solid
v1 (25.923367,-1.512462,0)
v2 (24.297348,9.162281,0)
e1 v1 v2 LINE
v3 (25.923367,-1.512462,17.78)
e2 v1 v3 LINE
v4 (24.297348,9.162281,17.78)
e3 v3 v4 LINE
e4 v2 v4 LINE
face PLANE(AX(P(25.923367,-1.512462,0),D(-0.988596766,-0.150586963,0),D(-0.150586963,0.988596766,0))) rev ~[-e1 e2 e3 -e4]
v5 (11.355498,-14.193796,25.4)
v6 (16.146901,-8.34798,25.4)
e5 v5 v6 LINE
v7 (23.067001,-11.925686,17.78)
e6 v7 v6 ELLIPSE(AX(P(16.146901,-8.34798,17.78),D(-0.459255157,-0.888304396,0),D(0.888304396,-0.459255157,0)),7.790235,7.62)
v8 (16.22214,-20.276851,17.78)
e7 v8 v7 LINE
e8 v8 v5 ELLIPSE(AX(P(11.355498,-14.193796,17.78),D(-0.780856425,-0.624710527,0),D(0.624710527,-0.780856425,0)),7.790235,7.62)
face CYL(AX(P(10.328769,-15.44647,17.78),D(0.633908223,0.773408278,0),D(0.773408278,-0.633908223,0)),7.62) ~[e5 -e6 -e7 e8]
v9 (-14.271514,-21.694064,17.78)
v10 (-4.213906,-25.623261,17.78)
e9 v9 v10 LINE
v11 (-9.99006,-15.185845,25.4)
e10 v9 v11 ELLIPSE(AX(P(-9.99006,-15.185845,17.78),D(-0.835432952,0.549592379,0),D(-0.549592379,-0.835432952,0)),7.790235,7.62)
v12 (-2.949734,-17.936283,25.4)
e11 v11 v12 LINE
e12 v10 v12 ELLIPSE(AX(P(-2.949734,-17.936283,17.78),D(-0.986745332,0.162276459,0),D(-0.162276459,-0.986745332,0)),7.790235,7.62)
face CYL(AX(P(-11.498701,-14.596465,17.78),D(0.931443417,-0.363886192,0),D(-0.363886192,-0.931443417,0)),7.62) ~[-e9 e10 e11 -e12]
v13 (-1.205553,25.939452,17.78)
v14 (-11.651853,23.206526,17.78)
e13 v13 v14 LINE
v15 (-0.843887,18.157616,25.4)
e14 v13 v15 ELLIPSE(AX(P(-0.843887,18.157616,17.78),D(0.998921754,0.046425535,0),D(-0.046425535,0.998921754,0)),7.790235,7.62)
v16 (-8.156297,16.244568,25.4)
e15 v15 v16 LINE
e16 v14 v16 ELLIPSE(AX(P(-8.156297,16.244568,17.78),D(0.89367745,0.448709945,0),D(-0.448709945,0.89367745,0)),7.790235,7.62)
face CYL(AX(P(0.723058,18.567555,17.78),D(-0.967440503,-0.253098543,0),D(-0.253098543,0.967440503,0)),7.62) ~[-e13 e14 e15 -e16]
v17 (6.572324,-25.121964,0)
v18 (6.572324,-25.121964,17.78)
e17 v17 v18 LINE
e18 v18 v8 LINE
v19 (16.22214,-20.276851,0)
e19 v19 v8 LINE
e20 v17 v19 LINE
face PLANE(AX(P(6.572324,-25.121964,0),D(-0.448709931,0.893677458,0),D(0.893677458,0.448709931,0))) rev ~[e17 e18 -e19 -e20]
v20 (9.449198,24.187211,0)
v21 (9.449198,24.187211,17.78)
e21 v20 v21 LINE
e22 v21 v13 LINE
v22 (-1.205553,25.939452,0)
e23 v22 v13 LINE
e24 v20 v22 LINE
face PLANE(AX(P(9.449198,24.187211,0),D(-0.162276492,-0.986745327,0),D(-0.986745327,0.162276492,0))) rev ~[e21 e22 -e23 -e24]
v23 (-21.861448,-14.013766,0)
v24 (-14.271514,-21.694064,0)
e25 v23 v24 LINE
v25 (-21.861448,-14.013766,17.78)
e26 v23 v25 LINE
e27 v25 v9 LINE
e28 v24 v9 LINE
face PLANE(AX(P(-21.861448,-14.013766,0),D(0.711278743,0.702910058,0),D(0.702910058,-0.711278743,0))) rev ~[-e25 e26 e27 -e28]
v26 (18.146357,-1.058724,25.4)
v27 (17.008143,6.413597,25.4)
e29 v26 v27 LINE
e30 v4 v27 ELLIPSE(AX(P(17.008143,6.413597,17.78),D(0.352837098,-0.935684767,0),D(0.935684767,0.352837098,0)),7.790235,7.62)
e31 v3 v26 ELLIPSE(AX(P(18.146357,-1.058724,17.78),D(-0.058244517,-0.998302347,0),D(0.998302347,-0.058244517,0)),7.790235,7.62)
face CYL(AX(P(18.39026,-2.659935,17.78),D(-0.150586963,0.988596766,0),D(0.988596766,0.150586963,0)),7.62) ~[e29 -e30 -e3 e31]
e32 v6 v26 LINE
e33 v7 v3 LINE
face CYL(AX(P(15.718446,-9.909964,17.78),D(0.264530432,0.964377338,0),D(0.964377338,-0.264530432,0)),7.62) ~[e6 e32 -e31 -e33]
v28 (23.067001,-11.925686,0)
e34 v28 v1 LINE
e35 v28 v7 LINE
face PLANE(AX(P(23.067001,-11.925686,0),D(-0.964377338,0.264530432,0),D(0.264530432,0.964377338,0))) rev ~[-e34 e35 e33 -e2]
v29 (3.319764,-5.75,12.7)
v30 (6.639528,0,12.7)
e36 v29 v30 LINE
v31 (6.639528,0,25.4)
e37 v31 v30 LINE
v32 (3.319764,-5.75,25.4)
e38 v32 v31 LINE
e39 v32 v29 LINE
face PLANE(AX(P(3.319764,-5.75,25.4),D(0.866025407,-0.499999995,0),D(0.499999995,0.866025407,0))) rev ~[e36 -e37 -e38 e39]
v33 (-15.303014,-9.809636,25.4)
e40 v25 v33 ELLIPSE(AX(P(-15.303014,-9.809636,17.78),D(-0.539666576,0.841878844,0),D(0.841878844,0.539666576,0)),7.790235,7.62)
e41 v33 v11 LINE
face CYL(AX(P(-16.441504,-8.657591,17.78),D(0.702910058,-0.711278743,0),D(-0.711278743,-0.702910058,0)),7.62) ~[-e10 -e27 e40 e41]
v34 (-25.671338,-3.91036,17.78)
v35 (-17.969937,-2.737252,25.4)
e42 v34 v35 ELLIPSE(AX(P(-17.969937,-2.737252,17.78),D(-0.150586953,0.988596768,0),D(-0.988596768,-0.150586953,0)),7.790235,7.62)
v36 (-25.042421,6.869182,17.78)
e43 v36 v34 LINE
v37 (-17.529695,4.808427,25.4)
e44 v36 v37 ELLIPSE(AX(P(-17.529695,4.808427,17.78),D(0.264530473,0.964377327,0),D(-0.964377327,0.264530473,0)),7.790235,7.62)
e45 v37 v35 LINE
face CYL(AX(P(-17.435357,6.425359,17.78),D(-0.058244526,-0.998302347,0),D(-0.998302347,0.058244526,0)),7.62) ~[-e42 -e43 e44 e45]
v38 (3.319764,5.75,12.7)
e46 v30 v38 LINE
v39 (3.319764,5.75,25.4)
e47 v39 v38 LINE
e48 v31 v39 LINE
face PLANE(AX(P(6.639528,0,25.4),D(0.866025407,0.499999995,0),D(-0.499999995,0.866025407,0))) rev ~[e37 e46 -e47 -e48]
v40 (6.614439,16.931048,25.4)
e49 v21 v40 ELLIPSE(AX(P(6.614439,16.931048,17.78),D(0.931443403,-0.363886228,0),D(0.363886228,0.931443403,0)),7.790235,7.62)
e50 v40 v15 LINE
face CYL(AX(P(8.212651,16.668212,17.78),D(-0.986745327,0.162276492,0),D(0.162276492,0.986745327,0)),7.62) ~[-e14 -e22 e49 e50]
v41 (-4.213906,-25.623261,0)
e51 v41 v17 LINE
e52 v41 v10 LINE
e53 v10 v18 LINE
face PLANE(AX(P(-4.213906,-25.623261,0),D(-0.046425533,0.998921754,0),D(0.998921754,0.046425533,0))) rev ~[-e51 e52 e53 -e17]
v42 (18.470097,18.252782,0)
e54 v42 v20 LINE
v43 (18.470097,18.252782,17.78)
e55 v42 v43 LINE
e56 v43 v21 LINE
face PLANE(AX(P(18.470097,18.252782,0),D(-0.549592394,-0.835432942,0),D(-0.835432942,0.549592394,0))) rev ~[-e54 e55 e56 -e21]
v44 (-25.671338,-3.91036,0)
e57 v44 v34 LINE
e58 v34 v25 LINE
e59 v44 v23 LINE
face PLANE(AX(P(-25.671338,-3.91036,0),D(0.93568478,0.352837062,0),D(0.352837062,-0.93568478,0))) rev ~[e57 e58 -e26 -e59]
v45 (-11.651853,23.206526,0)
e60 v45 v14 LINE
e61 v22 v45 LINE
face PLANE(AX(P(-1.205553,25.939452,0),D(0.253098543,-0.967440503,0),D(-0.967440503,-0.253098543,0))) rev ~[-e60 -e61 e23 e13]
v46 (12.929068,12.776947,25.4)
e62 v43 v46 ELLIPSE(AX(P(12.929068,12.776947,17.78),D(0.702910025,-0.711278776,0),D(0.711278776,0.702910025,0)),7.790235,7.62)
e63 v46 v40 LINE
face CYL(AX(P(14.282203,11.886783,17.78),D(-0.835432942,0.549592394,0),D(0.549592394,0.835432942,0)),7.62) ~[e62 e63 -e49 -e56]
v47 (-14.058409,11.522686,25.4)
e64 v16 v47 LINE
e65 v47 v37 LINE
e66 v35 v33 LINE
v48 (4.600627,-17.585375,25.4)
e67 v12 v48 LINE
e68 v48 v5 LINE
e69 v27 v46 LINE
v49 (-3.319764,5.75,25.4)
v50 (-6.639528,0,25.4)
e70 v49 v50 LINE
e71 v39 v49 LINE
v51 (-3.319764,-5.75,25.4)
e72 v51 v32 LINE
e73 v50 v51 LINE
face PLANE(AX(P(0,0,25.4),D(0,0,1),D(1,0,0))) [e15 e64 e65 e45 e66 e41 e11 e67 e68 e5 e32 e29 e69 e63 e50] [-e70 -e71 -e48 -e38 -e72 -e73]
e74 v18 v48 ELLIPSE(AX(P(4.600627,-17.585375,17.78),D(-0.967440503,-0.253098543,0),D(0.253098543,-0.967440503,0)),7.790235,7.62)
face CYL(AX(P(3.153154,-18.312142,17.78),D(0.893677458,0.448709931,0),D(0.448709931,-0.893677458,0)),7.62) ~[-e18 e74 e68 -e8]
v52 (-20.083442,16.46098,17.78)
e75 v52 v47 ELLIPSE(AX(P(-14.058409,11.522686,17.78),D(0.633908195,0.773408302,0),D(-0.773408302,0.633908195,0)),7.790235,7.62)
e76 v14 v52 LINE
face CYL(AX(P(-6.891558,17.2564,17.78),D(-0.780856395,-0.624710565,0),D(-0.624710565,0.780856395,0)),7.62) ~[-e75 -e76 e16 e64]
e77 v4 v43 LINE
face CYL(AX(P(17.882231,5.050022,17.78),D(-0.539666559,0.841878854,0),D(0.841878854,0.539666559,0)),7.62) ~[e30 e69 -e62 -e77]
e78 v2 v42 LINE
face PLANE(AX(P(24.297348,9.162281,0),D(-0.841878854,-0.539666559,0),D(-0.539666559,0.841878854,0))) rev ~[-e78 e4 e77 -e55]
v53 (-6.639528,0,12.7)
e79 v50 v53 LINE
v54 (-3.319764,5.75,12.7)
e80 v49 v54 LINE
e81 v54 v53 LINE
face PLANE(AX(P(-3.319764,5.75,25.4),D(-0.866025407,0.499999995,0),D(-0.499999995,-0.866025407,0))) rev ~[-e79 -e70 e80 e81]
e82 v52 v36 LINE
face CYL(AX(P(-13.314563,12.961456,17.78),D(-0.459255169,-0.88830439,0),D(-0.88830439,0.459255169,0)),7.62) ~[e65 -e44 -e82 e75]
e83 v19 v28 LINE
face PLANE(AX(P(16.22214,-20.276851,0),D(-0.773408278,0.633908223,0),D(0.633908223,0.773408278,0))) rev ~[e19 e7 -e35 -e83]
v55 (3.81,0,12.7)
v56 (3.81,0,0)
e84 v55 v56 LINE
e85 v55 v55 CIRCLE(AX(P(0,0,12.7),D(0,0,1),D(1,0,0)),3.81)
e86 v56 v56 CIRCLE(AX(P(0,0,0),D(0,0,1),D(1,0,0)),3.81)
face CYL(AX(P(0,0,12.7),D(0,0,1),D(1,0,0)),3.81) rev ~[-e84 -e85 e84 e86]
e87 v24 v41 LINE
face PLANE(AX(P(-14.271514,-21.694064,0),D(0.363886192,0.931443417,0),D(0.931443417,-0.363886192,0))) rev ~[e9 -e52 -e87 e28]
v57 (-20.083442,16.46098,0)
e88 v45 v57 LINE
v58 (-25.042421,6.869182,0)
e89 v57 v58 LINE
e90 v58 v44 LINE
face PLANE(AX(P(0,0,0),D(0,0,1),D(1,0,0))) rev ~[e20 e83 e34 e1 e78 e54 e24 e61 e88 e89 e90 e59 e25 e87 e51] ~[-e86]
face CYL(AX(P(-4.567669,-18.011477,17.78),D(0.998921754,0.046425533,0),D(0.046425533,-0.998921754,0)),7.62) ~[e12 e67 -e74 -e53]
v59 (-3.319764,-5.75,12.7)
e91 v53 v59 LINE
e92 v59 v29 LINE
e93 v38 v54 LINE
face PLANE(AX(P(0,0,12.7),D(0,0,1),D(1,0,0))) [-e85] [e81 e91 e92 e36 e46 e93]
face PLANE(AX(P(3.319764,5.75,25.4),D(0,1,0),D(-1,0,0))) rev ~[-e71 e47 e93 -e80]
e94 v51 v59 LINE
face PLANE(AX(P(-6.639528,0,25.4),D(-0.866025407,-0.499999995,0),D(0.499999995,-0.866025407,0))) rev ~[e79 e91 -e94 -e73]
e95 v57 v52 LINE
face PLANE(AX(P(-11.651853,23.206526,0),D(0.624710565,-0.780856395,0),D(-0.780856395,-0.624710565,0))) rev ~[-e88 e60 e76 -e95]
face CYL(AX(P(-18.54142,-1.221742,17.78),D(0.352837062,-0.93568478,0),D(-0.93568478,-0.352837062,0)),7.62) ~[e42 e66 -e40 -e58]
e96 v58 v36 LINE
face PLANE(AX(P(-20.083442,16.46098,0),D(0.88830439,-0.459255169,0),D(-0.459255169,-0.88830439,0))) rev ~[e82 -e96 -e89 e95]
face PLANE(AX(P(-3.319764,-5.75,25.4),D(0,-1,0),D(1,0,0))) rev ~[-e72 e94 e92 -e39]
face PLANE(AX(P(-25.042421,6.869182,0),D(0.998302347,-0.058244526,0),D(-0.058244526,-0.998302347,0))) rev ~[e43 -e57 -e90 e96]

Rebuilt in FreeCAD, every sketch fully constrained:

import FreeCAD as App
import Part
import Sketcher

V = App.Vector
Q = App.Units.Quantity


def edges_at(feature, points):
    """Names of the edges that pass closest to the given points."""
    edges = feature.Shape.Edges
    near = lambda p: min(range(len(edges)), key=lambda i: edges[i].distToShape(Part.Vertex(*p))[0])
    return sorted({f"Edge{near(p) + 1}" for p in points})


def add_polygon(sketch, points):
    """Adds a closed chain of lines whose ends are joined by coincident constraints."""
    first, n = sketch.GeometryCount, len(points)
    for a, b in zip(points, points[1:] + points[:1]):
        sketch.addGeometry(Part.LineSegment(App.Vector(*a, 0), App.Vector(*b, 0)), False)
    for i in range(n):
        sketch.addConstraint(Sketcher.Constraint("Coincident", first + i, 2, first + (i + 1) % n, 1))

doc = App.newDocument("Part")
body = doc.addObject("PartDesign::Body", "Body")

# Sketch on XY plane
sketch1 = body.newObject("Sketcher::SketchObject", "Sketch")
sketch1.AttachmentSupport = (doc.getObject("XY_Plane"), [""])
sketch1.MapMode = "FlatFace"
add_polygon(sketch1, [(7, -25), (16, -20), (23, -12), (26, -2), (24, 9), (18, 18), (9, 24), (-1, 26), (-12, 23), (-20, 16), (-25, 7), (-26, -4), (-22, -14), (-14, -22), (-4, -26)])  # lines 0-14
sketch1.addConstraint(Sketcher.Constraint("Equal", 0, 1))
sketch1.addConstraint(Sketcher.Constraint("Equal", 1, 2))
sketch1.addConstraint(Sketcher.Constraint("Equal", 2, 3))
sketch1.addConstraint(Sketcher.Constraint("Equal", 3, 4))
sketch1.addConstraint(Sketcher.Constraint("Equal", 4, 5))
sketch1.addConstraint(Sketcher.Constraint("Equal", 5, 6))
sketch1.addConstraint(Sketcher.Constraint("Equal", 6, 7))
sketch1.addConstraint(Sketcher.Constraint("Equal", 7, 8))
sketch1.addConstraint(Sketcher.Constraint("Equal", 8, 9))
sketch1.addConstraint(Sketcher.Constraint("Equal", 9, 10))
sketch1.addConstraint(Sketcher.Constraint("Equal", 10, 11))
sketch1.addConstraint(Sketcher.Constraint("Equal", 11, 12))
sketch1.addConstraint(Sketcher.Constraint("Equal", 12, 13))
sketch1.addConstraint(Sketcher.Constraint("Equal", 13, 14))
sketch1.addConstraint(Sketcher.Constraint("DistanceX", -1, 1, 1, 2, Q("23.067001 mm")))
sketch1.addConstraint(Sketcher.Constraint("DistanceX", -1, 1, 5, 2, Q("9.449198 mm")))
sketch1.addConstraint(Sketcher.Constraint("DistanceY", 3, 2, 4, 2, Q("9.090501 mm")))
sketch1.addConstraint(Sketcher.Constraint("DistanceX", 5, 2, 4, 2, Q("9.020899 mm")))
sketch1.addConstraint(Sketcher.Constraint("DistanceX", 6, 2, 3, 2, Q("25.502901 mm")))
sketch1.addConstraint(Sketcher.Constraint("DistanceX", 7, 2, 6, 2, Q("10.4463 mm")))
sketch1.addConstraint(Sketcher.Constraint("DistanceY", 3, 2, 8, 2, Q("7.298699 mm")))
sketch1.addConstraint(Sketcher.Constraint("DistanceY", 9, 2, 4, 2, Q("11.3836 mm")))
sketch1.addConstraint(Sketcher.Constraint("DistanceY", 12, 2, 11, 2, Q("7.680298 mm")))
sketch1.addConstraint(Sketcher.Constraint("DistanceY", 13, 2, 10, 2, Q("21.712901 mm")))
sketch1.addConstraint(Sketcher.Constraint("DistanceY", 14, 2, 12, 2, Q("3.4279 mm")))
sketch1.addConstraint(Sketcher.Constraint("DistanceY", 14, 2, 2, 2, Q("23.609502 mm")))
sketch1.addConstraint(Sketcher.Constraint("DistanceX", -1, 1, 0, 2, Q("16.22214 mm")))
sketch1.addConstraint(Sketcher.Constraint("DistanceY", 0, 2, -1, 1, Q("20.276851 mm")))
sketch1.addConstraint(Sketcher.Constraint("DistanceY", -1, 1, 3, 2, Q("9.162281 mm")))
sketch1.addConstraint(Sketcher.Constraint("DistanceY", -1, 1, 5, 2, Q("24.187211 mm")))
pad1 = body.newObject("PartDesign::Pad", "Pad")
pad1.Profile = sketch1
pad1.Length = Q("1 in")
doc.recompute()

fillet = body.newObject("PartDesign::Fillet", "Fillet")
fillet.Base = (pad1, edges_at(pad1, [
    (-18.066, -17.854, 25.4),
    (-9.243, -23.659, 25.4),
    (1.179, -25.373, 25.4),
    (11.397, -22.699, 25.4),
    (19.645, -16.101, 25.4),
    (24.495, -6.719, 25.4),
    (25.11, 3.825, 25.4),
    (21.384, 13.708, 25.4),
    (13.96, 21.22, 25.4),
    (4.122, 25.063, 25.4),
    (-6.429, 24.573, 25.4),
    (-15.868, 19.834, 25.4),
    (-22.563, 11.665, 25.4),
    (-25.357, 1.479, 25.4),
    (-23.766, -8.962, 25.4),
]))
fillet.Radius = Q("0.3 in")

# Sketch on XY plane
sketch2 = body.newObject("Sketcher::SketchObject", "Sketch001")
sketch2.AttachmentSupport = (doc.getObject("XY_Plane"), [""])
sketch2.MapMode = "FlatFace"
sketch2.AttachmentOffset = App.Placement(V(0, 0, 1 * 25.4), App.Rotation())
add_polygon(sketch2, [(-3, -6), (3, -6), (7, 0), (3, 6), (-3, 6), (-7, 0)])  # lines 0-5
sketch2.addConstraint(Sketcher.Constraint("Horizontal", 0))
sketch2.addConstraint(Sketcher.Constraint("Horizontal", 3))
sketch2.addConstraint(Sketcher.Constraint("Symmetric", 0, 2, 3, 2, -1, 1))
sketch2.addConstraint(Sketcher.Constraint("Symmetric", 1, 2, 4, 2, -1, 1))
sketch2.addConstraint(Sketcher.Constraint("PointOnObject", 1, 2, -1))
sketch2.addConstraint(Sketcher.Constraint("Parallel", 2, 5))
sketch2.addConstraint(Sketcher.Constraint("Vertical", 0, 2, 2, 2))
sketch2.addConstraint(Sketcher.Constraint("Angle", 1, Q("60 deg")))
sketch2.addConstraint(Sketcher.Constraint("DistanceX", 0, 1, 0, 2, Q("6.639528 mm")))
sketch2.addConstraint(Sketcher.Constraint("DistanceY", 0, 2, -1, 1, Q("5.75 mm")))
pocket1 = body.newObject("PartDesign::Pocket", "Pocket")
pocket1.Profile = sketch2
pocket1.Length = Q("0.5 in")

# Sketch on XY plane
sketch3 = body.newObject("Sketcher::SketchObject", "Sketch002")
sketch3.AttachmentSupport = (doc.getObject("XY_Plane"), [""])
sketch3.MapMode = "FlatFace"
sketch3.AttachmentOffset = App.Placement(V(0, 0, 0.5 * 25.4), App.Rotation())
sketch3.addGeometry(Part.Circle(V(0, 0, 0), V(0, 0, 1), 3.8), False)
sketch3.addConstraint(Sketcher.Constraint("Coincident", 0, 3, -1, 1))
sketch3.addConstraint(Sketcher.Constraint("Diameter", 0, Q("0.3 in")))
pocket2 = body.newObject("PartDesign::Pocket", "Pocket001")
pocket2.Profile = sketch3
pocket2.Length = Q("1 in")

doc.recompute()
